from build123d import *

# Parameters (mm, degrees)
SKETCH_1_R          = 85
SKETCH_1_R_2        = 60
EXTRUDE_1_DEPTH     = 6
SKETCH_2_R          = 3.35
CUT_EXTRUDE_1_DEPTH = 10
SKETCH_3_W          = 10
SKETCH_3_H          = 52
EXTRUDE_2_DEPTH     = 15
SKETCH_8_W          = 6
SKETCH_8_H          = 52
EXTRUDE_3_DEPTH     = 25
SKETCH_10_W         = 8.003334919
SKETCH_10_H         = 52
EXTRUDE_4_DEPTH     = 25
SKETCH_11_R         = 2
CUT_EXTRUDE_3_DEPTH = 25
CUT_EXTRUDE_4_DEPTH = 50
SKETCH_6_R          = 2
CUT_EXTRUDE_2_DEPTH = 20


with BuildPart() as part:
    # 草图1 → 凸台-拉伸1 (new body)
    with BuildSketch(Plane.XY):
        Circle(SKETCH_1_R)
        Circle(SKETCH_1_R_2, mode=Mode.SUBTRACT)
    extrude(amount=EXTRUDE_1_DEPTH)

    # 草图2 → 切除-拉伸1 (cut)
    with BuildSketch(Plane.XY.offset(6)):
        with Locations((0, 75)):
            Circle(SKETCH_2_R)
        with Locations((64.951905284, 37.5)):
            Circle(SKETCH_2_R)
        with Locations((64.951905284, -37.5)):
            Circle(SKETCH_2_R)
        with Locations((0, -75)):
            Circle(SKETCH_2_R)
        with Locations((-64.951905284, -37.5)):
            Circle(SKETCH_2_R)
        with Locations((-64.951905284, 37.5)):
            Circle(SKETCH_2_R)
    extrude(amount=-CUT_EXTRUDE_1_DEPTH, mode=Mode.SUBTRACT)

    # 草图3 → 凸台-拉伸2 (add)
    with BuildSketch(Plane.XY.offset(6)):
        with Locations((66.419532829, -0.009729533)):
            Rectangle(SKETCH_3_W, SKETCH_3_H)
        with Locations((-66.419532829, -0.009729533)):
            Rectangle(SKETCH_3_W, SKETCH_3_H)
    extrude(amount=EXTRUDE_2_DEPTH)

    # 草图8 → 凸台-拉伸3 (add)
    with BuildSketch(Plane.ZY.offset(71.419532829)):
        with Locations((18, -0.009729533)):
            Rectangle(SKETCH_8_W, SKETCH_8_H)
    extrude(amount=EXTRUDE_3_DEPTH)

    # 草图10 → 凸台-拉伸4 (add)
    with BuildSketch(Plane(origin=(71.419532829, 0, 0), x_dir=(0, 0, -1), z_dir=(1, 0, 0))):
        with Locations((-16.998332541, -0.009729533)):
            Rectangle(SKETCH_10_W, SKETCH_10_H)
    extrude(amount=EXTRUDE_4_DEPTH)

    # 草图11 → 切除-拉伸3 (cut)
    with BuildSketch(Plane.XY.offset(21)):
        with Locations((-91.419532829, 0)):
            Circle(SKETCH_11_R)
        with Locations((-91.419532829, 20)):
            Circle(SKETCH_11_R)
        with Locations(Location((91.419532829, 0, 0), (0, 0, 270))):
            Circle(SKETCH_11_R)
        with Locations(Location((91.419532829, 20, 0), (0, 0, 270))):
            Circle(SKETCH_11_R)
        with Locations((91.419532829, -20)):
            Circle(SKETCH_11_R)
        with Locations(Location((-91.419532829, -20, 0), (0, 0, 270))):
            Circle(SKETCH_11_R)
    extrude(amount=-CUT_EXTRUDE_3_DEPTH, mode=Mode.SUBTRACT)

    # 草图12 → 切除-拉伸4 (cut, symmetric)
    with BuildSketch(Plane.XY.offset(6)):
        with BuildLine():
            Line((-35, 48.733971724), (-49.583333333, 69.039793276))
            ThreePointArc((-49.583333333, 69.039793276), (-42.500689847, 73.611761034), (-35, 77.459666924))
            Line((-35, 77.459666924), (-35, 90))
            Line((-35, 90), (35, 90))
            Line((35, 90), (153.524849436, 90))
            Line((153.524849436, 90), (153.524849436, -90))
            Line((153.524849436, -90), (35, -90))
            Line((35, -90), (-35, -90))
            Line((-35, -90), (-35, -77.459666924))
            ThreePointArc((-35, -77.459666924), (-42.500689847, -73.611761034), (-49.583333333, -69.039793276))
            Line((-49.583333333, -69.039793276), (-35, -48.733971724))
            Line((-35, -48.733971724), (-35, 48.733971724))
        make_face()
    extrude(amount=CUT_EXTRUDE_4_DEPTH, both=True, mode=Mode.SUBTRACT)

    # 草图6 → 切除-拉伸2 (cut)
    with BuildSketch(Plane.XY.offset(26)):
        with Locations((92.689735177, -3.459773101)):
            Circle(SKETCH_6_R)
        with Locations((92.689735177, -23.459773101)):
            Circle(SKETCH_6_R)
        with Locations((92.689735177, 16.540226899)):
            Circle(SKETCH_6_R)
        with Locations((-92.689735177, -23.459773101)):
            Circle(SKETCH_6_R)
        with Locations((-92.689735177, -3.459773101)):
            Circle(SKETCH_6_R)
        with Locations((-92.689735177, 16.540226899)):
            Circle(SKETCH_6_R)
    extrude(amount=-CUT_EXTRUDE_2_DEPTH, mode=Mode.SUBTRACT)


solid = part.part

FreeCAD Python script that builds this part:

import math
import FreeCAD as App
import Part
import Sketcher
from FreeCAD import Vector


def add_polygon(sketch, points):
    """Adds a closed chain of lines whose ends are joined by coincident constraints."""
    first, n = sketch.GeometryCount, len(points)
    for a, b in zip(points, points[1:] + points[:1]):
        sketch.addGeometry(Part.LineSegment(App.Vector(*a, 0), App.Vector(*b, 0)), False)
    for i in range(n):
        sketch.addConstraint(Sketcher.Constraint("Coincident", first + i, 2, first + (i + 1) % n, 1))

doc = App.newDocument("Part")
body = doc.addObject("PartDesign::Body", "Body")

# Sketch on XY plane
sketch1 = doc.addObject("Sketcher::SketchObject", "Sketch")
body.addObject(sketch1)
sketch1.AttachmentSupport = (doc.XY_Plane, [""])
sketch1.MapMode = "FlatFace"
sketch1.addGeometry([
    Part.Circle(Vector(0, 0, 0), Vector(0, 0, 1), 85),
    Part.Circle(Vector(0, 0, 0), Vector(0, 0, 1), 60),
], False)
sketch1.addConstraint([
    Sketcher.Constraint("Coincident", 0, 3, -1, 1),
    Sketcher.Constraint("Coincident", 1, 3, -1, 1),
    Sketcher.Constraint("Diameter", 0, 170.0),
    Sketcher.Constraint("Diameter", 1, 120.0),
])
pad1 = doc.addObject("PartDesign::Pad", "Pad")
body.addObject(pad1)
pad1.Profile = sketch1
pad1.Length = 6

# Sketch on XY plane
sketch2 = doc.addObject("Sketcher::SketchObject", "Sketch001")
body.addObject(sketch2)
sketch2.AttachmentSupport = (doc.XY_Plane, [""])
sketch2.MapMode = "FlatFace"
sketch2.AttachmentOffset = App.Placement(Vector(0, 0, 6), App.Rotation())
sketch2.addGeometry([
    Part.Circle(Vector(0, 75, 0), Vector(0, 0, 1), 3.35),  # 0
    Part.Circle(Vector(64.951905, 37.5, 0), Vector(0, 0, 1), 3.35),  # 1
    Part.Circle(Vector(64.951905, -37.5, 0), Vector(0, 0, 1), 3.35),  # 2
    Part.Circle(Vector(0, -75, 0), Vector(0, 0, 1), 3.35),  # 3
    Part.Circle(Vector(-64.951905, -37.5, 0), Vector(0, 0, 1), 3.35),  # 4
    Part.Circle(Vector(-64.951905, 37.5, 0), Vector(0, 0, 1), 3.35),  # 5
], False)
sketch2.addConstraint([
    Sketcher.Constraint("Equal", 0, 1),
    Sketcher.Constraint("Equal", 1, 2),
    Sketcher.Constraint("Equal", 2, 3),
    Sketcher.Constraint("Equal", 3, 4),
    Sketcher.Constraint("Equal", 4, 5),
    Sketcher.Constraint("Symmetric", 0, 3, 3, 3, -1, 1),
    Sketcher.Constraint("Symmetric", 1, 3, 4, 3, -1, 1),
    Sketcher.Constraint("Symmetric", 2, 3, 5, 3, -1, 1),
    Sketcher.Constraint("Symmetric", 2, 3, 4, 3, -2),
    Sketcher.Constraint("PointOnObject", 0, 3, -2),
    Sketcher.Constraint("Diameter", 0, 6.7),
    Sketcher.Constraint("DistanceY", -1, 1, 0, 3, 75.0),
    Sketcher.Constraint("DistanceY", 2, 3, 1, 3, 75.0),
    Sketcher.Constraint("DistanceX", 4, 3, 2, 3, 129.903811),
])
pocket1 = doc.addObject("PartDesign::Pocket", "Pocket")
body.addObject(pocket1)
pocket1.Profile = sketch2
pocket1.Length = 10

# Sketch on XY plane
sketch3 = doc.addObject("Sketcher::SketchObject", "Sketch002")
body.addObject(sketch3)
sketch3.AttachmentSupport = (doc.XY_Plane, [""])
sketch3.MapMode = "FlatFace"
sketch3.AttachmentOffset = App.Placement(Vector(0, 0, 6), App.Rotation())
add_polygon(sketch3, [(61.419533, 25.99027), (61.419533, -26.00973), (71.419533, -26.00973), (71.419533, 25.99027)])  # lines 0-3
add_polygon(sketch3, [(-71.419533, 25.99027), (-71.419533, -26.00973), (-61.419533, -26.00973), (-61.419533, 25.99027)])  # lines 4-7
sketch3.addConstraint([
    Sketcher.Constraint("Vertical", 0),
    Sketcher.Constraint("Horizontal", 1),
    Sketcher.Constraint("Vertical", 2),
    Sketcher.Constraint("Horizontal", 3),
    Sketcher.Constraint("Vertical", 4),
    Sketcher.Constraint("Horizontal", 5),
    Sketcher.Constraint("Vertical", 6),
    Sketcher.Constraint("Horizontal", 7),
    Sketcher.Constraint("Symmetric", 1, 2, 4, 2, -2),
    Sketcher.Constraint("Symmetric", 3, 2, 6, 2, -2),
    Sketcher.Constraint("DistanceX", 1, 1, 1, 2, 10.0),
    Sketcher.Constraint("DistanceY", 0, 2, 0, 1, 52.0),
    Sketcher.Constraint("DistanceY", 0, 2, -1, 1, 26.00973),
    Sketcher.Constraint("DistanceX", -1, 1, 0, 2, 61.419533),
])
pad2 = doc.addObject("PartDesign::Pad", "Pad001")
body.addObject(pad2)
pad2.Profile = sketch3
pad2.Length = 15

# Sketch on YZ plane
sketch4 = doc.addObject("Sketcher::SketchObject", "Sketch003")
body.addObject(sketch4)
sketch4.AttachmentSupport = (doc.YZ_Plane, [""])
sketch4.MapMode = "FlatFace"
sketch4.AttachmentOffset = App.Placement(Vector(0, 0, -71.419533), App.Rotation())
add_polygon(sketch4, [(25.99027, 15), (-26.00973, 15), (-26.00973, 21), (25.99027, 21)])  # lines 0-3
sketch4.addConstraint([
    Sketcher.Constraint("Horizontal", 0),
    Sketcher.Constraint("Vertical", 1),
    Sketcher.Constraint("Horizontal", 2),
    Sketcher.Constraint("Vertical", 3),
    Sketcher.Constraint("DistanceX", 0, 2, 0, 1, 52.0),
    Sketcher.Constraint("DistanceY", 1, 1, 1, 2, 6.0),
    Sketcher.Constraint("DistanceY", -1, 1, 0, 2, 15.0),
    Sketcher.Constraint("DistanceX", 0, 2, -1, 1, 26.00973),
])
pad3 = doc.addObject("PartDesign::Pad", "Pad002")
body.addObject(pad3)
pad3.Profile = sketch4
pad3.Length = 25
pad3.Reversed = True

# Sketch on YZ plane
sketch5 = doc.addObject("Sketcher::SketchObject", "Sketch004")
body.addObject(sketch5)
sketch5.AttachmentSupport = (doc.YZ_Plane, [""])
sketch5.MapMode = "FlatFace"
sketch5.AttachmentOffset = App.Placement(Vector(0, 0, 71.419533), App.Rotation())
add_polygon(sketch5, [(25.99027, 21), (-26.00973, 21), (-26.00973, 12.996665), (25.99027, 12.996665)])  # lines 0-3
sketch5.addConstraint([
    Sketcher.Constraint("Horizontal", 0),
    Sketcher.Constraint("Vertical", 1),
    Sketcher.Constraint("Horizontal", 2),
    Sketcher.Constraint("Vertical", 3),
    Sketcher.Constraint("DistanceX", 0, 2, 0, 1, 52.0),
    Sketcher.Constraint("DistanceY", -1, 1, 0, 2, 21.0),
    Sketcher.Constraint("DistanceY", 1, 2, 1, 1, 8.003335),
    Sketcher.Constraint("DistanceX", 0, 2, -1, 1, 26.00973),
])
pad4 = doc.addObject("PartDesign::Pad", "Pad003")
body.addObject(pad4)
pad4.Profile = sketch5
pad4.Length = 25

# Sketch on XY plane
sketch6 = doc.addObject("Sketcher::SketchObject", "Sketch005")
body.addObject(sketch6)
sketch6.AttachmentSupport = (doc.XY_Plane, [""])
sketch6.MapMode = "FlatFace"
sketch6.AttachmentOffset = App.Placement(Vector(0, 0, 21), App.Rotation())
sketch6.addGeometry([
    Part.Circle(Vector(-91.419533, 0, 0), Vector(0, 0, 1), 2),  # 0
    Part.Circle(Vector(-91.419533, 20, 0), Vector(0, 0, 1), 2),  # 1
    Part.Circle(Vector(91.419533, 0, 0), Vector(0, 0, 1), 2),  # 2
    Part.Circle(Vector(91.419533, 20, 0), Vector(0, 0, 1), 2),  # 3
    Part.Circle(Vector(91.419533, -20, 0), Vector(0, 0, 1), 2),  # 4
    Part.Circle(Vector(-91.419533, -20, 0), Vector(0, 0, 1), 2),  # 5
], False)
sketch6.addConstraint([
    Sketcher.Constraint("Equal", 0, 1),
    Sketcher.Constraint("Equal", 1, 2),
    Sketcher.Constraint("Equal", 2, 3),
    Sketcher.Constraint("Equal", 3, 4),
    Sketcher.Constraint("Equal", 4, 5),
    Sketcher.Constraint("Symmetric", 0, 3, 2, 3, -1, 1),
    Sketcher.Constraint("Symmetric", 1, 3, 4, 3, -1, 1),
    Sketcher.Constraint("Symmetric", 3, 3, 5, 3, -1, 1),
    Sketcher.Constraint("Symmetric", 1, 3, 3, 3, -2),
    Sketcher.Constraint("PointOnObject", 0, 3, -1),
    Sketcher.Constraint("Vertical", 0, 3, 1, 3),
    Sketcher.Constraint("Diameter", 0, 4.0),
    Sketcher.Constraint("DistanceY", -1, 1, 1, 3, 20.0),
    Sketcher.Constraint("DistanceX", 0, 3, -1, 1, 91.419533),
])
pocket2 = doc.addObject("PartDesign::Pocket", "Pocket001")
body.addObject(pocket2)
pocket2.Profile = sketch6
pocket2.Length = 25

# Sketch on XY plane
sketch7 = doc.addObject("Sketcher::SketchObject", "Sketch006")
body.addObject(sketch7)
sketch7.AttachmentSupport = (doc.XY_Plane, [""])
sketch7.MapMode = "FlatFace"
sketch7.AttachmentOffset = App.Placement(Vector(0, 0, 6), App.Rotation())
sketch7.addGeometry([
    Part.LineSegment(Vector(-49.583333, 69.039793, 0), Vector(-35, 48.733972, 0)),  # 0
    Part.LineSegment(Vector(-35, 48.733972, 0), Vector(-35, -48.733972, 0)),  # 1
    Part.LineSegment(Vector(-35, -48.733972, 0), Vector(-49.583333, -69.039793, 0)),  # 2
    Part.ArcOfCircle(Part.Circle(Vector(0, 0, 0), Vector(0, 0, 1), 85), math.radians(-125.685335), math.radians(-114.315739)),  # 3
    Part.LineSegment(Vector(-35, -77.459667, 0), Vector(-35, -90, 0)),  # 4
    Part.LineSegment(Vector(-35, -90, 0), Vector(153.524849, -90, 0)),  # 5
    Part.LineSegment(Vector(153.524849, -90, 0), Vector(153.524849, 90, 0)),  # 6
    Part.LineSegment(Vector(153.524849, 90, 0), Vector(-35, 90, 0)),  # 7
    Part.LineSegment(Vector(-35, 90, 0), Vector(-35, 77.459667, 0)),  # 8
    Part.ArcOfCircle(Part.Circle(Vector(0, 0, 0), Vector(0, 0, 1), 85), math.radians(114.315739), math.radians(125.685335)),  # 9
], False)
sketch7.addConstraint([
    Sketcher.Constraint("Coincident", 0, 2, 1, 1),
    Sketcher.Constraint("Coincident", 1, 2, 2, 1),
    Sketcher.Constraint("Coincident", 2, 2, 3, 1),
    Sketcher.Constraint("Coincident", 3, 2, 4, 1),
    Sketcher.Constraint("Coincident", 4, 2, 5, 1),
    Sketcher.Constraint("Coincident", 5, 2, 6, 1),
    Sketcher.Constraint("Coincident", 6, 2, 7, 1),
    Sketcher.Constraint("Coincident", 7, 2, 8, 1),
    Sketcher.Constraint("Coincident", 8, 2, 9, 1),
    Sketcher.Constraint("Coincident", 9, 2, 0, 1),
    Sketcher.Constraint("Vertical", 1),
    Sketcher.Constraint("Vertical", 4),
    Sketcher.Constraint("Horizontal", 5),
    Sketcher.Constraint("Vertical", 6),
    Sketcher.Constraint("Horizontal", 7),
    Sketcher.Constraint("Vertical", 8),
    Sketcher.Constraint("Coincident", 3, 3, -1, 1),
    Sketcher.Constraint("Coincident", 9, 3, -1, 1),
    Sketcher.Constraint("Equal", 3, 9),
    Sketcher.Constraint("Symmetric", 4, 2, 7, 2, -1),
    Sketcher.Constraint("Vertical", 1, 2, 3, 2),
    Sketcher.Constraint("Vertical", 2, 2, 9, 2),
    Sketcher.Constraint("Equal", 0, 2),
    Sketcher.Constraint("Radius", 3, 85.0),
    Sketcher.Constraint("DistanceY", 6, 1, 6, 2, 180.0),
    Sketcher.Constraint("Distance", 0, 25.0),
    Sketcher.Constraint("DistanceX", 0, 2, -1, 1, 35.0),
    Sketcher.Constraint("DistanceX", 5, 1, 5, 2, 188.524849),
    Sketcher.Constraint("DistanceY", 2, 2, 1, 2, 20.305822),
])
pocket3 = doc.addObject("PartDesign::Pocket", "Pocket002")
body.addObject(pocket3)
pocket3.Profile = sketch7
pocket3.Length = 100
pocket3.Midplane = True

# Sketch on XY plane
sketch8 = doc.addObject("Sketcher::SketchObject", "Sketch007")
body.addObject(sketch8)
sketch8.AttachmentSupport = (doc.XY_Plane, [""])
sketch8.MapMode = "FlatFace"
sketch8.AttachmentOffset = App.Placement(Vector(0, 0, 26), App.Rotation())
sketch8.addGeometry([
    Part.Circle(Vector(92.689735, -3.459773, 0), Vector(0, 0, 1), 2),  # 0
    Part.Circle(Vector(92.689735, -23.459773, 0), Vector(0, 0, 1), 2),  # 1
    Part.Circle(Vector(92.689735, 16.540227, 0), Vector(0, 0, 1), 2),  # 2
    Part.Circle(Vector(-92.689735, -23.459773, 0), Vector(0, 0, 1), 2),  # 3
    Part.Circle(Vector(-92.689735, -3.459773, 0), Vector(0, 0, 1), 2),  # 4
    Part.Circle(Vector(-92.689735, 16.540227, 0), Vector(0, 0, 1), 2),  # 5
], False)
sketch8.addConstraint([
    Sketcher.Constraint("Equal", 0, 1),
    Sketcher.Constraint("Equal", 1, 2),
    Sketcher.Constraint("Equal", 2, 3),
    Sketcher.Constraint("Equal", 3, 4),
    Sketcher.Constraint("Equal", 4, 5),
    Sketcher.Constraint("Symmetric", 1, 3, 3, 3, -2),
    Sketcher.Constraint("Symmetric", 0, 3, 4, 3, -2),
    Sketcher.Constraint("Symmetric", 2, 3, 5, 3, -2),
    Sketcher.Constraint("Vertical", 0, 3, 1, 3),
    Sketcher.Constraint("Vertical", 1, 3, 2, 3),
    Sketcher.Constraint("Diameter", 0, 4.0),
    Sketcher.Constraint("DistanceY", 1, 3, 0, 3, 20.0),
    Sketcher.Constraint("DistanceY", 0, 3, 2, 3, 20.0),
    Sketcher.Constraint("DistanceX", 3, 3, 1, 3, 185.37947),
    Sketcher.Constraint("DistanceY", 0, 3, -1, 1, 3.459773),
])
pocket4 = doc.addObject("PartDesign::Pocket", "Pocket003")
body.addObject(pocket4)
pocket4.Profile = sketch8
pocket4.Length = 20

doc.recompute()
